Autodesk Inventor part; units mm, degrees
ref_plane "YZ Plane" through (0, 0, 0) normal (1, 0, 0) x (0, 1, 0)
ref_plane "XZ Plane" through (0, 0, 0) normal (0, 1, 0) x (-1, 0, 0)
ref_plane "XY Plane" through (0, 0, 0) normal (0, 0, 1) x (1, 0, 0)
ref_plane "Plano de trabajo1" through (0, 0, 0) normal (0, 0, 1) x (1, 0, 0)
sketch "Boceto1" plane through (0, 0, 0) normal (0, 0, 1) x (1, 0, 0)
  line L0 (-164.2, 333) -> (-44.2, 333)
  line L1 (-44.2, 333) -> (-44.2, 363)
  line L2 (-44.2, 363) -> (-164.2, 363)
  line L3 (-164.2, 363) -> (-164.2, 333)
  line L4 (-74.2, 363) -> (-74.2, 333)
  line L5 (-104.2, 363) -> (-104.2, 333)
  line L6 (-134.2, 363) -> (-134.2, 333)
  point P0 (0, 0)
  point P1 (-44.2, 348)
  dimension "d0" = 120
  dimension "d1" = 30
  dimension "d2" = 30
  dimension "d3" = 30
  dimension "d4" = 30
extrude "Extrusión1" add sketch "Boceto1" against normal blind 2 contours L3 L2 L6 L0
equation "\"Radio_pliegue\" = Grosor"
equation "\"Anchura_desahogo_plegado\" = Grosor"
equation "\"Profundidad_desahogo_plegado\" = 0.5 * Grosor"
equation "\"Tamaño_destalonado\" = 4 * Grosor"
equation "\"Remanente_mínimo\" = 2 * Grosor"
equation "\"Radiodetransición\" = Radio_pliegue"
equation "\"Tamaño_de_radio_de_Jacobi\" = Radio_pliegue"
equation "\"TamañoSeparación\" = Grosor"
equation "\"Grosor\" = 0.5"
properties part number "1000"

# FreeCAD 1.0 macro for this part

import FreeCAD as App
import Part
import Sketcher

V = App.Vector

doc = App.newDocument("Part")
body = doc.addObject("PartDesign::Body", "Body")

# Sketch on XY plane
sketch1 = body.newObject("Sketcher::SketchObject", "Sketch")
sketch1.AttachmentSupport = (doc.getObject("XY_Plane"), [""])
sketch1.MapMode = "FlatFace"
sketch1.addGeometry([
    Part.LineSegment(V(-164, 363, 0), V(-164, 333, 0)),
    Part.LineSegment(V(-164, 333, 0), V(-134, 333, 0)),
    Part.LineSegment(V(-134, 333, 0), V(-134, 363, 0)),
    Part.LineSegment(V(-134, 363, 0), V(-164, 363, 0)),
], False)
sketch1.addConstraint([
    Sketcher.Constraint("Coincident", 0, 2, 1, 1),
    Sketcher.Constraint("Coincident", 1, 2, 2, 1),
    Sketcher.Constraint("Coincident", 2, 2, 3, 1),
    Sketcher.Constraint("Coincident", 3, 2, 0, 1),
    Sketcher.Constraint("Vertical", 0),
    Sketcher.Constraint("Horizontal", 1),
    Sketcher.Constraint("Vertical", 2),
    Sketcher.Constraint("Horizontal", 3),
    Sketcher.Constraint("Equal", 3, 0),
    Sketcher.Constraint("DistanceX", 1, 1, 1, 2, 30.0),
    Sketcher.Constraint("DistanceY", -1, 1, 0, 2, 333.0),
    Sketcher.Constraint("DistanceX", 0, 2, -1, 1, 164.2),
])
pad1 = body.newObject("PartDesign::Pad", "Pad")
pad1.Profile = sketch1
pad1.Length = 2
pad1.Reversed = True

doc.recompute()
